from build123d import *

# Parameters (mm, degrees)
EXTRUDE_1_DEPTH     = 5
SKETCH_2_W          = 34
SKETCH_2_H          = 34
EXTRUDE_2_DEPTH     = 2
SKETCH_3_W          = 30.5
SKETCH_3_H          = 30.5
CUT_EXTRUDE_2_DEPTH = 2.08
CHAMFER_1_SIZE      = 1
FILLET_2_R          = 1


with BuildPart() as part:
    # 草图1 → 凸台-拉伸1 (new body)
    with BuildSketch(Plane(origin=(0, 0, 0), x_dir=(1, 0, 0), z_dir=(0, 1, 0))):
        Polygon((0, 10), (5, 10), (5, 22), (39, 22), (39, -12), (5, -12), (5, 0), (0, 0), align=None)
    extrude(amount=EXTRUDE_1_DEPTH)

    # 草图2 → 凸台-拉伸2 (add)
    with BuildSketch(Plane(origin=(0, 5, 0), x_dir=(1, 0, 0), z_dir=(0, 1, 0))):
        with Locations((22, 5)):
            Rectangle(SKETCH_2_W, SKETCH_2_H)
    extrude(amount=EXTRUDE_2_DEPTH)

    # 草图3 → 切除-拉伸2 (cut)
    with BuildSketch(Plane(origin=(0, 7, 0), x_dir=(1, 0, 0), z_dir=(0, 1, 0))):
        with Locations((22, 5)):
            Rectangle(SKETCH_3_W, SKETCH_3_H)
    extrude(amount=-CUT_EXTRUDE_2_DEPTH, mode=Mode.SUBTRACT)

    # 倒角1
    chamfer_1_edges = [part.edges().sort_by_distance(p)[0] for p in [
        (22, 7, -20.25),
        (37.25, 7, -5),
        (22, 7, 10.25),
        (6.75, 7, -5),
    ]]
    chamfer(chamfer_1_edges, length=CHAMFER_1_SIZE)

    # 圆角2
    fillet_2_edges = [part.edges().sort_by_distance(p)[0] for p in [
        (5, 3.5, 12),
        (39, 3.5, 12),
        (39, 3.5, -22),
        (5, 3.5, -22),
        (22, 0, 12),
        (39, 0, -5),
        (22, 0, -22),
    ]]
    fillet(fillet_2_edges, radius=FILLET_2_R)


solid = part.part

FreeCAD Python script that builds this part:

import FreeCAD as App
import Part
import Sketcher


def edges_at(feature, points):
    """Names of the edges that pass closest to the given points."""
    edges = feature.Shape.Edges
    near = lambda p: min(range(len(edges)), key=lambda i: edges[i].distToShape(Part.Vertex(*p))[0])
    return sorted({f"Edge{near(p) + 1}" for p in points})

doc = App.newDocument("Part")
body = doc.addObject("PartDesign::Body", "Body")

sketch1 = body.newObject("Sketcher::SketchObject", "Sketch")
sketch1.AttachmentSupport = (doc.getObject("XZ_Plane"), [""])
sketch1.MapMode = "FlatFace"
sketch1.addGeometry([
    Part.LineSegment(App.Vector(5, -10, 0), App.Vector(0, -10, 0)),
    Part.LineSegment(App.Vector(0, -10, 0), App.Vector(0, 0, 0)),
    Part.LineSegment(App.Vector(0, 0, 0), App.Vector(5, 0, 0)),
    Part.LineSegment(App.Vector(5, 0, 0), App.Vector(5, 12, 0)),
    Part.LineSegment(App.Vector(5, 12, 0), App.Vector(39, 12, 0)),
    Part.LineSegment(App.Vector(39, 12, 0), App.Vector(39, -22, 0)),
    Part.LineSegment(App.Vector(39, -22, 0), App.Vector(5, -22, 0)),
    Part.LineSegment(App.Vector(5, -22, 0), App.Vector(5, -10, 0)),
], False)
sketch1.addConstraint([
    Sketcher.Constraint("Coincident", 0, 2, 1, 1),
    Sketcher.Constraint("Coincident", 1, 2, 2, 1),
    Sketcher.Constraint("Coincident", 2, 2, 3, 1),
    Sketcher.Constraint("Coincident", 3, 2, 4, 1),
    Sketcher.Constraint("Coincident", 4, 2, 5, 1),
    Sketcher.Constraint("Coincident", 5, 2, 6, 1),
    Sketcher.Constraint("Coincident", 6, 2, 7, 1),
    Sketcher.Constraint("Coincident", 7, 2, 0, 1),
    Sketcher.Constraint("Horizontal", 0),
    Sketcher.Constraint("Vertical", 1),
    Sketcher.Constraint("Horizontal", 2),
    Sketcher.Constraint("Vertical", 3),
    Sketcher.Constraint("Horizontal", 4),
    Sketcher.Constraint("Vertical", 5),
    Sketcher.Constraint("Horizontal", 6),
    Sketcher.Constraint("Vertical", 7),
    Sketcher.Constraint("Coincident", 1, 2, -1, 1),
    Sketcher.Constraint("Vertical", 3, 2, 6, 2),
    Sketcher.Constraint("Equal", 6, 5),
    Sketcher.Constraint("Equal", 3, 7),
    Sketcher.Constraint("DistanceX", 0, 2, 0, 1, 5.0),
    Sketcher.Constraint("DistanceX", 4, 1, 4, 2, 34.0),
    Sketcher.Constraint("DistanceY", 1, 1, 1, 2, 10.0),
])
pad1 = body.newObject("PartDesign::Pad", "Pad")
pad1.Profile = sketch1
pad1.Length = 5
pad1.Reversed = True

sketch2 = body.newObject("Sketcher::SketchObject", "Sketch001")
sketch2.AttachmentSupport = (doc.getObject("XZ_Plane"), [""])
sketch2.MapMode = "FlatFace"
sketch2.AttachmentOffset = App.Placement(App.Vector(0, 0, -5), App.Rotation())
sketch2.addGeometry([
    Part.LineSegment(App.Vector(5, -22, 0), App.Vector(5, 12, 0)),
    Part.LineSegment(App.Vector(5, 12, 0), App.Vector(39, 12, 0)),
    Part.LineSegment(App.Vector(39, 12, 0), App.Vector(39, -22, 0)),
    Part.LineSegment(App.Vector(39, -22, 0), App.Vector(5, -22, 0)),
], False)
sketch2.addConstraint([
    Sketcher.Constraint("Coincident", 0, 2, 1, 1),
    Sketcher.Constraint("Coincident", 1, 2, 2, 1),
    Sketcher.Constraint("Coincident", 2, 2, 3, 1),
    Sketcher.Constraint("Coincident", 3, 2, 0, 1),
    Sketcher.Constraint("Vertical", 0),
    Sketcher.Constraint("Horizontal", 1),
    Sketcher.Constraint("Vertical", 2),
    Sketcher.Constraint("Horizontal", 3),
    Sketcher.Constraint("Equal", 3, 0),
    Sketcher.Constraint("DistanceX", 1, 1, 1, 2, 34.0),
    Sketcher.Constraint("DistanceX", -1, 1, 0, 2, 5.0),
    Sketcher.Constraint("DistanceY", -1, 1, 0, 2, 12.0),
])
pad2 = body.newObject("PartDesign::Pad", "Pad001")
pad2.Profile = sketch2
pad2.Length = 2
pad2.Reversed = True

sketch3 = body.newObject("Sketcher::SketchObject", "Sketch002")
sketch3.AttachmentSupport = (doc.getObject("XZ_Plane"), [""])
sketch3.MapMode = "FlatFace"
sketch3.AttachmentOffset = App.Placement(App.Vector(0, 0, -7), App.Rotation())
sketch3.addGeometry([
    Part.LineSegment(App.Vector(7, -20, 0), App.Vector(7, 10, 0)),
    Part.LineSegment(App.Vector(7, 10, 0), App.Vector(37, 10, 0)),
    Part.LineSegment(App.Vector(37, 10, 0), App.Vector(37, -20, 0)),
    Part.LineSegment(App.Vector(37, -20, 0), App.Vector(7, -20, 0)),
], False)
sketch3.addConstraint([
    Sketcher.Constraint("Coincident", 0, 2, 1, 1),
    Sketcher.Constraint("Coincident", 1, 2, 2, 1),
    Sketcher.Constraint("Coincident", 2, 2, 3, 1),
    Sketcher.Constraint("Coincident", 3, 2, 0, 1),
    Sketcher.Constraint("Vertical", 0),
    Sketcher.Constraint("Horizontal", 1),
    Sketcher.Constraint("Vertical", 2),
    Sketcher.Constraint("Horizontal", 3),
    Sketcher.Constraint("Equal", 3, 0),
    Sketcher.Constraint("DistanceX", 1, 1, 1, 2, 30.5),
    Sketcher.Constraint("DistanceX", -1, 1, 0, 2, 6.75),
    Sketcher.Constraint("DistanceY", -1, 1, 0, 2, 10.25),
])
pocket1 = body.newObject("PartDesign::Pocket", "Pocket")
pocket1.Profile = sketch3
pocket1.Length = 2.08
pocket1.Reversed = True
doc.recompute()

chamfer = body.newObject("PartDesign::Chamfer", "Chamfer")
chamfer.Base = (pocket1, edges_at(pocket1, [
    (22, 7, -20.25),
    (37.25, 7, -5),
    (22, 7, 10.25),
    (6.75, 7, -5),
]))
chamfer.Size = 1
doc.recompute()

fillet = body.newObject("PartDesign::Fillet", "Fillet")
fillet.Base = (chamfer, edges_at(chamfer, [
    (5, 3.5, 12),
    (39, 3.5, 12),
    (39, 3.5, -22),
    (5, 3.5, -22),
    (22, 0, 12),
    (39, 0, -5),
    (22, 0, -22),
]))
fillet.Radius = 1

doc.recompute()
